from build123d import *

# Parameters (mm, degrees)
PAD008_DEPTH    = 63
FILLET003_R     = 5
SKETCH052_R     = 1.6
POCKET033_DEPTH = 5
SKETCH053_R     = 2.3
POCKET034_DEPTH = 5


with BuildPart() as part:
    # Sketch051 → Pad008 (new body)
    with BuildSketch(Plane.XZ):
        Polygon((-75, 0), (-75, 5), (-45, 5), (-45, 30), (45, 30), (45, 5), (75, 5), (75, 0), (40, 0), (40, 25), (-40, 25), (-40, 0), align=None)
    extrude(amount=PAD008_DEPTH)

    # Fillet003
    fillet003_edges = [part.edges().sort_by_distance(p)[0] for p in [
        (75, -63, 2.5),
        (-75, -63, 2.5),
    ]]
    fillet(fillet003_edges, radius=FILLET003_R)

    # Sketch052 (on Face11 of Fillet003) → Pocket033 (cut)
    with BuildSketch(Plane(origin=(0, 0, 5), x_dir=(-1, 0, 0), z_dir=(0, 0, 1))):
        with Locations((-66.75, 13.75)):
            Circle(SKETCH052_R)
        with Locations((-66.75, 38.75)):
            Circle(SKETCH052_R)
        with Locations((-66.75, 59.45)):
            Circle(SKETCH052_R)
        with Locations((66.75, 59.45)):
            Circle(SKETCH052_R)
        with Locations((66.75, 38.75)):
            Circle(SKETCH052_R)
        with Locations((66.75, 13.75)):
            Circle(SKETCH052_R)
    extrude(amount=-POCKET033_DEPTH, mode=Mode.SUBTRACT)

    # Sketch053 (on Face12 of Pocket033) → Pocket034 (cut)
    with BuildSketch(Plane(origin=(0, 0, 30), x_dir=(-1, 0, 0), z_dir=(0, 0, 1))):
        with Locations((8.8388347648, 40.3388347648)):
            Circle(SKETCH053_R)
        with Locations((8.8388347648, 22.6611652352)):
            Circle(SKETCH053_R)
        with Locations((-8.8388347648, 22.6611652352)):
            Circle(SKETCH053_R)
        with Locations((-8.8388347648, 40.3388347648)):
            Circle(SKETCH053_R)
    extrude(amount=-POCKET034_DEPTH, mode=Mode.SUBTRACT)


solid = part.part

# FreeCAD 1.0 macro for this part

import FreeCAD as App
import Part
import Sketcher

V = App.Vector


def edges_at(feature, points):
    """Names of the edges that pass closest to the given points."""
    edges = feature.Shape.Edges
    near = lambda p: min(range(len(edges)), key=lambda i: edges[i].distToShape(Part.Vertex(*p))[0])
    return sorted({f"Edge{near(p) + 1}" for p in points})

doc = App.newDocument("Part")
params = doc.addObject("Spreadsheet::Sheet", "Params")
for row, (alias, value) in enumerate([
    ("sketch1_width", "35 mm"),
    ("sketch1_width2", "80 mm"),
    ("sketch1_width3", "30 mm"),
    ("sketch1_height", "5 mm"),
    ("sketch1_height2", "25 mm"),
    ("pad1_length", "63 mm"),
    ("fillet_radius", "5 mm"),
    ("sketch2_diameter", "3.2 mm"),
    ("pocket1_length", "5 mm"),
    ("sketch3_diameter", "4.6 mm"),
    ("pocket2_length", "5 mm"),
], start=1):
    params.set(f"A{row}", alias)
    params.set(f"B{row}", "=" + value)
    params.setAlias(f"B{row}", alias)

body = doc.addObject("PartDesign::Body", "Body")

# Sketch on XZ plane
sketch1 = doc.addObject("Sketcher::SketchObject", "Sketch")
body.addObject(sketch1)
sketch1.AttachmentSupport = (doc.XZ_Plane, [""])
sketch1.MapMode = "FlatFace"
sketch1.addGeometry(Part.LineSegment(V(-75, 5, 0), V(-75, 0, 0)), False)
sketch1.addGeometry(Part.LineSegment(V(-75, 0, 0), V(-40, 0, 0)), False)
sketch1.addGeometry(Part.LineSegment(V(-40, 0, 0), V(-40, 25, 0)), False)
sketch1.addGeometry(Part.LineSegment(V(-40, 25, 0), V(40, 25, 0)), False)
sketch1.addGeometry(Part.LineSegment(V(40, 25, 0), V(40, 0, 0)), False)
sketch1.addGeometry(Part.LineSegment(V(40, 0, 0), V(75, 0, 0)), False)
sketch1.addGeometry(Part.LineSegment(V(75, 0, 0), V(75, 5, 0)), False)
sketch1.addGeometry(Part.LineSegment(V(75, 5, 0), V(45, 5, 0)), False)
sketch1.addGeometry(Part.LineSegment(V(45, 5, 0), V(45, 30, 0)), False)
sketch1.addGeometry(Part.LineSegment(V(45, 30, 0), V(-45, 30, 0)), False)
sketch1.addGeometry(Part.LineSegment(V(-45, 30, 0), V(-45, 5, 0)), False)
sketch1.addGeometry(Part.LineSegment(V(-45, 5, 0), V(-75, 5, 0)), False)
sketch1.addConstraint(Sketcher.Constraint("Coincident", 0, 2, 1, 1))
sketch1.addConstraint(Sketcher.Constraint("Coincident", 1, 2, 2, 1))
sketch1.addConstraint(Sketcher.Constraint("Coincident", 2, 2, 3, 1))
sketch1.addConstraint(Sketcher.Constraint("Coincident", 3, 2, 4, 1))
sketch1.addConstraint(Sketcher.Constraint("Coincident", 4, 2, 5, 1))
sketch1.addConstraint(Sketcher.Constraint("Coincident", 5, 2, 6, 1))
sketch1.addConstraint(Sketcher.Constraint("Coincident", 6, 2, 7, 1))
sketch1.addConstraint(Sketcher.Constraint("Coincident", 7, 2, 8, 1))
sketch1.addConstraint(Sketcher.Constraint("Coincident", 8, 2, 9, 1))
sketch1.addConstraint(Sketcher.Constraint("Coincident", 9, 2, 10, 1))
sketch1.addConstraint(Sketcher.Constraint("Coincident", 10, 2, 11, 1))
sketch1.addConstraint(Sketcher.Constraint("Coincident", 11, 2, 0, 1))
sketch1.addConstraint(Sketcher.Constraint("Vertical", 0))
sketch1.addConstraint(Sketcher.Constraint("Horizontal", 1))
sketch1.addConstraint(Sketcher.Constraint("Vertical", 2))
sketch1.addConstraint(Sketcher.Constraint("Horizontal", 3))
sketch1.addConstraint(Sketcher.Constraint("Vertical", 4))
sketch1.addConstraint(Sketcher.Constraint("Horizontal", 5))
sketch1.addConstraint(Sketcher.Constraint("Vertical", 6))
sketch1.addConstraint(Sketcher.Constraint("Horizontal", 7))
sketch1.addConstraint(Sketcher.Constraint("Vertical", 8))
sketch1.addConstraint(Sketcher.Constraint("Horizontal", 9))
sketch1.addConstraint(Sketcher.Constraint("Vertical", 10))
sketch1.addConstraint(Sketcher.Constraint("Horizontal", 11))
sketch1.addConstraint(Sketcher.Constraint("Symmetric", 1, 2, 4, 2, -1, 1))
sketch1.addConstraint(Sketcher.Constraint("Symmetric", 0, 2, 5, 2, -2))
sketch1.addConstraint(Sketcher.Constraint("Symmetric", 7, 2, 10, 2, -2))
sketch1.addConstraint(Sketcher.Constraint("Equal", 4, 8))
sketch1.addConstraint(Sketcher.Constraint("DistanceX", 1, 1, 1, 2, 35.0))
sketch1.addConstraint(Sketcher.Constraint("DistanceX", 3, 1, 3, 2, 80.0))
sketch1.addConstraint(Sketcher.Constraint("DistanceX", 7, 2, 7, 1, 30.0))
sketch1.addConstraint(Sketcher.Constraint("DistanceY", 0, 2, 0, 1, 5.0))
sketch1.addConstraint(Sketcher.Constraint("DistanceY", 2, 1, 2, 2, 25.0))
sketch1.setExpression("Constraints[28]", "Params.sketch1_width")
sketch1.setExpression("Constraints[29]", "Params.sketch1_width2")
sketch1.setExpression("Constraints[30]", "Params.sketch1_width3")
sketch1.setExpression("Constraints[31]", "Params.sketch1_height")
sketch1.setExpression("Constraints[32]", "Params.sketch1_height2")
pad1 = doc.addObject("PartDesign::Pad", "Pad")
body.addObject(pad1)
pad1.Profile = sketch1
pad1.setExpression("Length", "Params.pad1_length")
doc.recompute()

fillet = doc.addObject("PartDesign::Fillet", "Fillet")
body.addObject(fillet)
fillet.Base = (pad1, edges_at(pad1, [(75, -63, 2.5), (-75, -63, 2.5)]))
fillet.setExpression("Radius", "Params.fillet_radius")

# Sketch on XY plane
sketch2 = doc.addObject("Sketcher::SketchObject", "Sketch001")
body.addObject(sketch2)
sketch2.AttachmentSupport = (doc.XY_Plane, [""])
sketch2.MapMode = "FlatFace"
sketch2.AttachmentOffset = App.Placement(V(0, 0, 5), App.Rotation())
sketch2.addGeometry(Part.Circle(V(66.75, -13.75, 0), V(0, 0, 1), 1.6), False)
sketch2.addGeometry(Part.Circle(V(66.75, -38.75, 0), V(0, 0, 1), 1.6), False)
sketch2.addGeometry(Part.Circle(V(66.75, -59.45, 0), V(0, 0, 1), 1.6), False)
sketch2.addGeometry(Part.Circle(V(-66.75, -59.45, 0), V(0, 0, 1), 1.6), False)
sketch2.addGeometry(Part.Circle(V(-66.75, -38.75, 0), V(0, 0, 1), 1.6), False)
sketch2.addGeometry(Part.Circle(V(-66.75, -13.75, 0), V(0, 0, 1), 1.6), False)
sketch2.addConstraint(Sketcher.Constraint("Equal", 0, 1))
sketch2.addConstraint(Sketcher.Constraint("Equal", 1, 2))
sketch2.addConstraint(Sketcher.Constraint("Equal", 2, 3))
sketch2.addConstraint(Sketcher.Constraint("Equal", 3, 4))
sketch2.addConstraint(Sketcher.Constraint("Equal", 4, 5))
sketch2.addConstraint(Sketcher.Constraint("Symmetric", 2, 3, 3, 3, -2))
sketch2.addConstraint(Sketcher.Constraint("Symmetric", 1, 3, 4, 3, -2))
sketch2.addConstraint(Sketcher.Constraint("Symmetric", 0, 3, 5, 3, -2))
sketch2.addConstraint(Sketcher.Constraint("Vertical", 0, 3, 1, 3))
sketch2.addConstraint(Sketcher.Constraint("Vertical", 1, 3, 2, 3))
sketch2.addConstraint(Sketcher.Constraint("Diameter", 0, 3.2))
sketch2.addConstraint(Sketcher.Constraint("DistanceY", 1, 3, 0, 3, 25.0))
sketch2.addConstraint(Sketcher.Constraint("DistanceY", 2, 3, 1, 3, 20.7))
sketch2.addConstraint(Sketcher.Constraint("DistanceX", 3, 3, 2, 3, 133.5))
sketch2.addConstraint(Sketcher.Constraint("DistanceY", 0, 3, -1, 1, 13.75))
sketch2.setExpression("Constraints[10]", "Params.sketch2_diameter")
pocket1 = doc.addObject("PartDesign::Pocket", "Pocket")
body.addObject(pocket1)
pocket1.Profile = sketch2
pocket1.setExpression("Length", "Params.pocket1_length")

# Sketch on XY plane
sketch3 = doc.addObject("Sketcher::SketchObject", "Sketch002")
body.addObject(sketch3)
sketch3.AttachmentSupport = (doc.XY_Plane, [""])
sketch3.MapMode = "FlatFace"
sketch3.AttachmentOffset = App.Placement(V(0, 0, 30), App.Rotation())
sketch3.addGeometry(Part.Circle(V(-8.838835, -40.338835, 0), V(0, 0, 1), 2.3), False)
sketch3.addGeometry(Part.Circle(V(-8.838835, -22.661165, 0), V(0, 0, 1), 2.3), False)
sketch3.addGeometry(Part.Circle(V(8.838835, -22.661165, 0), V(0, 0, 1), 2.3), False)
sketch3.addGeometry(Part.Circle(V(8.838835, -40.338835, 0), V(0, 0, 1), 2.3), False)
sketch3.addConstraint(Sketcher.Constraint("Equal", 0, 1))
sketch3.addConstraint(Sketcher.Constraint("Equal", 1, 2))
sketch3.addConstraint(Sketcher.Constraint("Equal", 2, 3))
sketch3.addConstraint(Sketcher.Constraint("Symmetric", 1, 3, 2, 3, -2))
sketch3.addConstraint(Sketcher.Constraint("Symmetric", 0, 3, 3, 3, -2))
sketch3.addConstraint(Sketcher.Constraint("Vertical", 0, 3, 1, 3))
sketch3.addConstraint(Sketcher.Constraint("Diameter", 0, 4.6))
sketch3.addConstraint(Sketcher.Constraint("DistanceY", 0, 3, 1, 3, 17.67767))
sketch3.addConstraint(Sketcher.Constraint("DistanceX", 1, 3, 2, 3, 17.67767))
sketch3.addConstraint(Sketcher.Constraint("DistanceY", 0, 3, -1, 1, 40.338835))
sketch3.setExpression("Constraints[6]", "Params.sketch3_diameter")
pocket2 = doc.addObject("PartDesign::Pocket", "Pocket001")
body.addObject(pocket2)
pocket2.Profile = sketch3
pocket2.setExpression("Length", "Params.pocket2_length")

doc.recompute()
